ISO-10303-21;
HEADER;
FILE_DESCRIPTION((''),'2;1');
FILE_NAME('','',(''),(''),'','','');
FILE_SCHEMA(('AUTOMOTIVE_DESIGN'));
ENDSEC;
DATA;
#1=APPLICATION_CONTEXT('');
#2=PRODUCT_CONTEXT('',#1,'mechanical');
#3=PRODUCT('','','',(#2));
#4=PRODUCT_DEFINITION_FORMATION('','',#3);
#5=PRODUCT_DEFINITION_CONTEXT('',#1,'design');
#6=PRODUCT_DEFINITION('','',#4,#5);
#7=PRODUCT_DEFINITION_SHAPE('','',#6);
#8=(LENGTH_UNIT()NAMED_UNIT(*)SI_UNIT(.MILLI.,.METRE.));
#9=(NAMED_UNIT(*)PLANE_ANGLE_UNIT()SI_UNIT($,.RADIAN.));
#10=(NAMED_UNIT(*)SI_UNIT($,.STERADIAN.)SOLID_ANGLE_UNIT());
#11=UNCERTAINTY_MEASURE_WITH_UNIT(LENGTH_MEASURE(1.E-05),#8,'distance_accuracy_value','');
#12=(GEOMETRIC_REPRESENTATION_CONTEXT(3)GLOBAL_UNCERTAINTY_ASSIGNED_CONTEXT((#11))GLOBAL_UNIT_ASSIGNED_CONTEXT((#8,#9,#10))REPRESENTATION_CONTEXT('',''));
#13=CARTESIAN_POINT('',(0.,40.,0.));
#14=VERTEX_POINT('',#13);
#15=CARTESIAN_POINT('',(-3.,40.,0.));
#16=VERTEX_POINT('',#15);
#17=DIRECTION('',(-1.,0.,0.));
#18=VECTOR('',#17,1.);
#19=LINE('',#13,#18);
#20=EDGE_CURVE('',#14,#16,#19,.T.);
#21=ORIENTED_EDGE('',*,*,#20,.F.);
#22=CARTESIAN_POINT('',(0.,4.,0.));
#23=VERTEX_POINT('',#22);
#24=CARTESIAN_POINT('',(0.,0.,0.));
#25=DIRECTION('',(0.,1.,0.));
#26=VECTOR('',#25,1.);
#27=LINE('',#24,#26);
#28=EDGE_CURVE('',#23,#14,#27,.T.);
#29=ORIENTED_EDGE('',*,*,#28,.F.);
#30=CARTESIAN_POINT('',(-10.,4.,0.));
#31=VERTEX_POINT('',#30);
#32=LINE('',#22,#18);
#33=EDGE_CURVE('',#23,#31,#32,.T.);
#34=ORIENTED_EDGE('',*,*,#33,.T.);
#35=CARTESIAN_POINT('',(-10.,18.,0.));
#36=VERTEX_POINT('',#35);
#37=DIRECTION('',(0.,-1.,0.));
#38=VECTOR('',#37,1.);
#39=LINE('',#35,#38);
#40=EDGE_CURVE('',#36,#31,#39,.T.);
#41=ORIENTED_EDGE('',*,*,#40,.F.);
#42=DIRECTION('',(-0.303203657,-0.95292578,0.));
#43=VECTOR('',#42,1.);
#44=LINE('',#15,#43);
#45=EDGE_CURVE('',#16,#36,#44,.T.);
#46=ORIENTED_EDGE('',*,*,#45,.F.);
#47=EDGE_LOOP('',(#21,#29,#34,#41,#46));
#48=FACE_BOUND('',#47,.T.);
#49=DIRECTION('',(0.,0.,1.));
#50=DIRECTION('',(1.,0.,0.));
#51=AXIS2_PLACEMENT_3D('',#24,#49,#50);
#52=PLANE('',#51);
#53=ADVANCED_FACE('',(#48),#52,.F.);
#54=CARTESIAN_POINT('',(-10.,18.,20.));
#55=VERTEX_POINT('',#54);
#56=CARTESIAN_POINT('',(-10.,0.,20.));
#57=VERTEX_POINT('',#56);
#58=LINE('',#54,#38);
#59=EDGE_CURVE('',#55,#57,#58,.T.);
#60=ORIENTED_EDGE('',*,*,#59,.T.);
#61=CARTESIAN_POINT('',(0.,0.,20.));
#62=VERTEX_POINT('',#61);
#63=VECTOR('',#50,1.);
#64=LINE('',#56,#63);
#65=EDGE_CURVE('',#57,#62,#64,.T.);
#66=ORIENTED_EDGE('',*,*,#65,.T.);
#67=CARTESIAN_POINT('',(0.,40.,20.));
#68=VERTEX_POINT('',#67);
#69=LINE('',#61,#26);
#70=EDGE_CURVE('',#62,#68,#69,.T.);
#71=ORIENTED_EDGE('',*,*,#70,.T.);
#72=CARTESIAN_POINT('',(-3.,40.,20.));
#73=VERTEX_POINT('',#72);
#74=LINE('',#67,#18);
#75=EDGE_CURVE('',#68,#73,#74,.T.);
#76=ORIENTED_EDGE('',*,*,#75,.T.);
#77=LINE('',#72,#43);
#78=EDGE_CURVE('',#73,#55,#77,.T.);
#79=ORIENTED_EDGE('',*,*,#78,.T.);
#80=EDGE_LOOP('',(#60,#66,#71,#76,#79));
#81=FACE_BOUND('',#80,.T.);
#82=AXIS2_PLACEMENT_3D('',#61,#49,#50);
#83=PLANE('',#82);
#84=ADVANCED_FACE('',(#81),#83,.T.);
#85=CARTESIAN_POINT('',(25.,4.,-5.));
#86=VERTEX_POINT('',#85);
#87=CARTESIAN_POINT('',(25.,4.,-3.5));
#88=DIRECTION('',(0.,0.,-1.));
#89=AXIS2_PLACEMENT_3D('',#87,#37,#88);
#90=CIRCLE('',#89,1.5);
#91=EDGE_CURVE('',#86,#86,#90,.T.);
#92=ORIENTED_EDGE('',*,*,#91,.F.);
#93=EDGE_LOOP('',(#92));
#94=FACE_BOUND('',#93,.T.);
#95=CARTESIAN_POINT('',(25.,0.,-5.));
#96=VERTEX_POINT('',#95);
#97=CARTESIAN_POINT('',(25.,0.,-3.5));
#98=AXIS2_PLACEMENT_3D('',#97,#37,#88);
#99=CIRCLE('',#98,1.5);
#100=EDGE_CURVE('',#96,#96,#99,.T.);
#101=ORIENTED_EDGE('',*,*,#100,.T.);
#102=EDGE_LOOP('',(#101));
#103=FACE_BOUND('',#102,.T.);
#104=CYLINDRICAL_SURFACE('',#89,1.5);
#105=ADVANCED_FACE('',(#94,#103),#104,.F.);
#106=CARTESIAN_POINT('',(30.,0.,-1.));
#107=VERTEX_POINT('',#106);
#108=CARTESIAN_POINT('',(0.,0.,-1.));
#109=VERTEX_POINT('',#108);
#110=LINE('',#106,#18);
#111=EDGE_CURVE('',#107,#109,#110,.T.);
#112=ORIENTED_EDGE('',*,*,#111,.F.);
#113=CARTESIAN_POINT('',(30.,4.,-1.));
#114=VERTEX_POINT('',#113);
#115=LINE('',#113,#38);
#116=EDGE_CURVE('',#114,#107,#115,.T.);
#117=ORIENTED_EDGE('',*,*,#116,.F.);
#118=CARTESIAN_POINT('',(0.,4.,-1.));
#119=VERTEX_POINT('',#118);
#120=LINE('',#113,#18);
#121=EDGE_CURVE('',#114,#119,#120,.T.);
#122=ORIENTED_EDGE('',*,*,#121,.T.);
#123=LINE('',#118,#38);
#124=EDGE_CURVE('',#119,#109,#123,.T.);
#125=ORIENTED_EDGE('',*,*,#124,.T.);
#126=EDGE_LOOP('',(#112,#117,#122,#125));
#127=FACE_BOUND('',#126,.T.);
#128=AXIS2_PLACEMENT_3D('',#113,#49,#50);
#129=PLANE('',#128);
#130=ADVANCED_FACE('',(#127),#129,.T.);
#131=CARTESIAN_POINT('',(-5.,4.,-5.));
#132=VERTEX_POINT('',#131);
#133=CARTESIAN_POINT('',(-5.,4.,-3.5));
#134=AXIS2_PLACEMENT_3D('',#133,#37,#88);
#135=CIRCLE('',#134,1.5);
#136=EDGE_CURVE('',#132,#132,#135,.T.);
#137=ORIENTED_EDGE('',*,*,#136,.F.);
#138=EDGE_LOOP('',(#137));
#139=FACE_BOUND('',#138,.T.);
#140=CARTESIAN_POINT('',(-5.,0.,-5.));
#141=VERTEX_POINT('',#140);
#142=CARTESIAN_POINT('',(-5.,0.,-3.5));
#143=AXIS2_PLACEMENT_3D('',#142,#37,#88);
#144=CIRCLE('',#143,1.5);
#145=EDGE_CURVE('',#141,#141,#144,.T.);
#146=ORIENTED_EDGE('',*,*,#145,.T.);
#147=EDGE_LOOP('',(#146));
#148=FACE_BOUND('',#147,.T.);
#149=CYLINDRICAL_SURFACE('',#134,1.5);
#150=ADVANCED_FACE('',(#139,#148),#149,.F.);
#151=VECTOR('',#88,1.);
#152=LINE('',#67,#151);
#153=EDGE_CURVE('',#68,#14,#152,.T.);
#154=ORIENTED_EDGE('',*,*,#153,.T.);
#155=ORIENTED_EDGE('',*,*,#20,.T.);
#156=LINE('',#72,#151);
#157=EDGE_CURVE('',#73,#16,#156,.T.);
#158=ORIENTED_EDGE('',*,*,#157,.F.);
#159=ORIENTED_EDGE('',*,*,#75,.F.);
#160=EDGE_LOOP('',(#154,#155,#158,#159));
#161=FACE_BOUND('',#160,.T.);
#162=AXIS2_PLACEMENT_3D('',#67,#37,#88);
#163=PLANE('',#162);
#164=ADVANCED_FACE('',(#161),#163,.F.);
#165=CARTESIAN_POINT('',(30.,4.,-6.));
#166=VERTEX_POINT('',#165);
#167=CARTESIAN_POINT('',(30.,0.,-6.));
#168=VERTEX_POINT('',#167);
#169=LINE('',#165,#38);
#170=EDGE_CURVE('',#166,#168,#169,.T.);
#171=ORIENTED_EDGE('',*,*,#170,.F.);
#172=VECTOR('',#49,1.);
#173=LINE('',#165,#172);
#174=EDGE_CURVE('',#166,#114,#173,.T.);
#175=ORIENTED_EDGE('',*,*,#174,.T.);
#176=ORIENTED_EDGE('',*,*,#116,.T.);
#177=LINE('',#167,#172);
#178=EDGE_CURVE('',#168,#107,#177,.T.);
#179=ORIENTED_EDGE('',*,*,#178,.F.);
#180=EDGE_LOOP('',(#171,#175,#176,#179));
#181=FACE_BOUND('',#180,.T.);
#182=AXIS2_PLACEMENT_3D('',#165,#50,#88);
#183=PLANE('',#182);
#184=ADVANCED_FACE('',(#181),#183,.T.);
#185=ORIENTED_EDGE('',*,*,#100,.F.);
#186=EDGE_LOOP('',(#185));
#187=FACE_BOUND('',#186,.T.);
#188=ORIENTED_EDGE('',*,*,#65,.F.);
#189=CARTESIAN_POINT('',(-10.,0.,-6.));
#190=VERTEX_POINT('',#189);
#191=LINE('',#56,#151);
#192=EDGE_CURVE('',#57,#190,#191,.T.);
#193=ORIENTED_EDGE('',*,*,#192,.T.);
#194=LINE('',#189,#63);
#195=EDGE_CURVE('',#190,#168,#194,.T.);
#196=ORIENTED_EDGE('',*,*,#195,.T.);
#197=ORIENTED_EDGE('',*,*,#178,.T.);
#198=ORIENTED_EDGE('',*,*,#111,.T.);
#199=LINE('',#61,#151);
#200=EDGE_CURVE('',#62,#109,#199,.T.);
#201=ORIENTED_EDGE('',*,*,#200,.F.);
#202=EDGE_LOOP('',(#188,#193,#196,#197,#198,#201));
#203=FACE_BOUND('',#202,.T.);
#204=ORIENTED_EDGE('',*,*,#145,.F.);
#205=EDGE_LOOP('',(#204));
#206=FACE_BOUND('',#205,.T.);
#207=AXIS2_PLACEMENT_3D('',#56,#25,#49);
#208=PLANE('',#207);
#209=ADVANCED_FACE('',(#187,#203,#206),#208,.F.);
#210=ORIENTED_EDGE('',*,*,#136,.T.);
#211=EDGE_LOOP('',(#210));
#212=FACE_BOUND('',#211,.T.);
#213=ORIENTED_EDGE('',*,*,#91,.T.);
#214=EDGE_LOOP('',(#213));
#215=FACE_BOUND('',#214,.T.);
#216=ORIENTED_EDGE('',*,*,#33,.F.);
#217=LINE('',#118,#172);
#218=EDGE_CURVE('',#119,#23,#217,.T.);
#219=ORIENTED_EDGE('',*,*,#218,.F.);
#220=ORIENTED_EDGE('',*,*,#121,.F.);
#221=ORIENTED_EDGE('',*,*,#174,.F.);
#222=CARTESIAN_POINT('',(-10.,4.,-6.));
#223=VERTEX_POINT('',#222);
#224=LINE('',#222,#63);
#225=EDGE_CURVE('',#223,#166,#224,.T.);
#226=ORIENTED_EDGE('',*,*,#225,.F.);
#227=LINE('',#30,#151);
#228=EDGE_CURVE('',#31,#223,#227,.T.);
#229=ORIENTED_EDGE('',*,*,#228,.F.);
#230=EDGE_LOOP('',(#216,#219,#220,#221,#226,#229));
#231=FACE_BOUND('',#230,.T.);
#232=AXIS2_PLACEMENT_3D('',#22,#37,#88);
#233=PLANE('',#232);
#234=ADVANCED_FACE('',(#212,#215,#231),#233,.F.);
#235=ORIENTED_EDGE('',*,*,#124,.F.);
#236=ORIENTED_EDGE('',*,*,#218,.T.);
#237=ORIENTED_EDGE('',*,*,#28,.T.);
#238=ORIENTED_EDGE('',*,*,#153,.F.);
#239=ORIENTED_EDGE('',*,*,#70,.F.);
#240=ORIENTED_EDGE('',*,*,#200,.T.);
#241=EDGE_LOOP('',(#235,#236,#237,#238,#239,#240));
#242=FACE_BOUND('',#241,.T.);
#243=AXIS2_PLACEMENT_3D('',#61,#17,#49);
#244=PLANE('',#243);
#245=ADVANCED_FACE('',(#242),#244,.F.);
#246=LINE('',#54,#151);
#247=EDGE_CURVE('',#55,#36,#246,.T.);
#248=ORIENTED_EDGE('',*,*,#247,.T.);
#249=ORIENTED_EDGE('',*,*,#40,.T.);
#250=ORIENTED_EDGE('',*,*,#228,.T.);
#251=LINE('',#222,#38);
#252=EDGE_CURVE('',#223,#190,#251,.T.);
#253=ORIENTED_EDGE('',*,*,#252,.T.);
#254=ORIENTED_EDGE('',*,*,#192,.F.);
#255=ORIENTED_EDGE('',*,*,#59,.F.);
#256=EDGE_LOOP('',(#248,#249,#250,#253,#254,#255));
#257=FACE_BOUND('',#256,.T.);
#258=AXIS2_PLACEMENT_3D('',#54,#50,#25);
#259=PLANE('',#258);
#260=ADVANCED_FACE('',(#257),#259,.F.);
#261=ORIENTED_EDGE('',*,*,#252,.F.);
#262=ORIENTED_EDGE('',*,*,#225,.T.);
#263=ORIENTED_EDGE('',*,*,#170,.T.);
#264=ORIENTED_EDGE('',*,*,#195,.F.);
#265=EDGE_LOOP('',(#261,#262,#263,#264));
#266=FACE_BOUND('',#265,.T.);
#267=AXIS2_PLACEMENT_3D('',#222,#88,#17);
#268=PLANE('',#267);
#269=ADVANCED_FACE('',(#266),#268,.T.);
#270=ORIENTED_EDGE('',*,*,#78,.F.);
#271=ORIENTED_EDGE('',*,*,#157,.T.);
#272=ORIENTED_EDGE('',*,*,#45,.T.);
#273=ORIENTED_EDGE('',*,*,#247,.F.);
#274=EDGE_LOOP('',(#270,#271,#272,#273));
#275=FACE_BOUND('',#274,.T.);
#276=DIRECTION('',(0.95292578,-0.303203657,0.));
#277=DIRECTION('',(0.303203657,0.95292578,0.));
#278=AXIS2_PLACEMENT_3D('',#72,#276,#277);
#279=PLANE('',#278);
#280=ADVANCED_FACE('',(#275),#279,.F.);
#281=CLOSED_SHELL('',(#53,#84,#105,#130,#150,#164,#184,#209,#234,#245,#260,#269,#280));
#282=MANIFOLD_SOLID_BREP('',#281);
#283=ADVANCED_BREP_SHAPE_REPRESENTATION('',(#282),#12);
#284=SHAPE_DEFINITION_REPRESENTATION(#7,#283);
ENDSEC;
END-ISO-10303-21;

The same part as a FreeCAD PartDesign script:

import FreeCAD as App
import Part
import Sketcher
Q = App.Units.Quantity

doc = App.newDocument("Part")
params = doc.addObject("Spreadsheet::Sheet", "Params")
for row, (alias, value) in enumerate([
    ("sketch1_width", "3 mm"),
    ("sketch1_width2", "10 mm"),
    ("sketch1_height", "40 mm"),
    ("sketch1_height2", "18 mm"),
    ("pad1_length", "20 mm"),
    ("sketch2_diameter", "3 mm"),
    ("sketch2_width", "40 mm"),
    ("sketch2_width2", "30 mm"),
    ("sketch2_height", "6 mm"),
    ("sketch2_height2", "5 mm"),
    ("pad2_length", "4 mm"),
], start=1):
    params.set(f"A{row}", alias)
    params.set(f"B{row}", "=" + value)
    params.setAlias(f"B{row}", alias)

body = doc.addObject("PartDesign::Body", "Body")

# Sketch on XY plane
sketch1 = body.newObject("Sketcher::SketchObject", "Sketch")
sketch1.AttachmentSupport = (doc.getObject("XY_Plane"), [""])
sketch1.MapMode = "FlatFace"
sketch1.addGeometry(Part.LineSegment(App.Vector(0, 0, 0), App.Vector(0, 40, 0)), False)
sketch1.addGeometry(Part.LineSegment(App.Vector(0, 40, 0), App.Vector(-3, 40, 0)), False)
sketch1.addGeometry(Part.LineSegment(App.Vector(-3, 40, 0), App.Vector(-10, 18, 0)), False)
sketch1.addGeometry(Part.LineSegment(App.Vector(-10, 18, 0), App.Vector(-10, 0, 0)), False)
sketch1.addGeometry(Part.LineSegment(App.Vector(-10, 0, 0), App.Vector(0, 0, 0)), False)
sketch1.addConstraint(Sketcher.Constraint("Coincident", 0, 2, 1, 1))
sketch1.addConstraint(Sketcher.Constraint("Coincident", 1, 2, 2, 1))
sketch1.addConstraint(Sketcher.Constraint("Coincident", 2, 2, 3, 1))
sketch1.addConstraint(Sketcher.Constraint("Coincident", 3, 2, 4, 1))
sketch1.addConstraint(Sketcher.Constraint("Coincident", 4, 2, 0, 1))
sketch1.addConstraint(Sketcher.Constraint("Vertical", 0))
sketch1.addConstraint(Sketcher.Constraint("Horizontal", 1))
sketch1.addConstraint(Sketcher.Constraint("Vertical", 3))
sketch1.addConstraint(Sketcher.Constraint("Horizontal", 4))
sketch1.addConstraint(Sketcher.Constraint("Coincident", 4, 2, -1, 1))
sketch1.addConstraint(Sketcher.Constraint("DistanceX", 1, 2, 1, 1, Q("3 mm")))
sketch1.addConstraint(Sketcher.Constraint("DistanceX", 4, 1, 4, 2, Q("10 mm")))
sketch1.addConstraint(Sketcher.Constraint("DistanceY", 0, 1, 0, 2, Q("40 mm")))
sketch1.addConstraint(Sketcher.Constraint("DistanceY", 3, 2, 3, 1, Q("18 mm")))
sketch1.setExpression("Constraints[10]", "Params.sketch1_width")
sketch1.setExpression("Constraints[11]", "Params.sketch1_width2")
sketch1.setExpression("Constraints[12]", "Params.sketch1_height")
sketch1.setExpression("Constraints[13]", "Params.sketch1_height2")
pad1 = body.newObject("PartDesign::Pad", "Pad")
pad1.Profile = sketch1
pad1.setExpression("Length", "Params.pad1_length")

# Sketch on XZ plane
sketch2 = body.newObject("Sketcher::SketchObject", "Sketch001")
sketch2.AttachmentSupport = (doc.getObject("XZ_Plane"), [""])
sketch2.MapMode = "FlatFace"
sketch2.addGeometry(Part.LineSegment(App.Vector(-10, 0, 0), App.Vector(-10, -6, 0)), False)
sketch2.addGeometry(Part.LineSegment(App.Vector(-10, -6, 0), App.Vector(30, -6, 0)), False)
sketch2.addGeometry(Part.LineSegment(App.Vector(30, -6, 0), App.Vector(30, -1, 0)), False)
sketch2.addGeometry(Part.LineSegment(App.Vector(30, -1, 0), App.Vector(0, -1, 0)), False)
sketch2.addGeometry(Part.LineSegment(App.Vector(0, -1, 0), App.Vector(0, 0, 0)), False)
sketch2.addGeometry(Part.LineSegment(App.Vector(0, 0, 0), App.Vector(-10, 0, 0)), False)
sketch2.addGeometry(Part.Circle(App.Vector(-5, -3.5, 0), App.Vector(0, 0, 1), 1.5), False)
sketch2.addGeometry(Part.Circle(App.Vector(25, -3.5, 0), App.Vector(0, 0, 1), 1.5), False)
sketch2.addConstraint(Sketcher.Constraint("Coincident", 0, 2, 1, 1))
sketch2.addConstraint(Sketcher.Constraint("Coincident", 1, 2, 2, 1))
sketch2.addConstraint(Sketcher.Constraint("Coincident", 2, 2, 3, 1))
sketch2.addConstraint(Sketcher.Constraint("Coincident", 3, 2, 4, 1))
sketch2.addConstraint(Sketcher.Constraint("Coincident", 4, 2, 5, 1))
sketch2.addConstraint(Sketcher.Constraint("Coincident", 5, 2, 0, 1))
sketch2.addConstraint(Sketcher.Constraint("Vertical", 0))
sketch2.addConstraint(Sketcher.Constraint("Horizontal", 1))
sketch2.addConstraint(Sketcher.Constraint("Vertical", 2))
sketch2.addConstraint(Sketcher.Constraint("Horizontal", 3))
sketch2.addConstraint(Sketcher.Constraint("Vertical", 4))
sketch2.addConstraint(Sketcher.Constraint("Horizontal", 5))
sketch2.addConstraint(Sketcher.Constraint("Coincident", 4, 2, -1, 1))
sketch2.addConstraint(Sketcher.Constraint("Equal", 6, 7))
sketch2.addConstraint(Sketcher.Constraint("Horizontal", 6, 3, 7, 3))
sketch2.addConstraint(Sketcher.Constraint("Diameter", 6, Q("3 mm")))
sketch2.addConstraint(Sketcher.Constraint("DistanceX", 1, 1, 1, 2, Q("40 mm")))
sketch2.addConstraint(Sketcher.Constraint("DistanceX", 3, 2, 3, 1, Q("30 mm")))
sketch2.addConstraint(Sketcher.Constraint("DistanceY", 0, 2, 0, 1, Q("6 mm")))
sketch2.addConstraint(Sketcher.Constraint("DistanceY", 2, 1, 2, 2, Q("5 mm")))
sketch2.addConstraint(Sketcher.Constraint("DistanceX", 6, 3, -1, 1, Q("5 mm")))
sketch2.addConstraint(Sketcher.Constraint("DistanceX", -1, 1, 7, 3, Q("25 mm")))
sketch2.addConstraint(Sketcher.Constraint("DistanceY", 6, 3, -1, 1, Q("3.5 mm")))
sketch2.setExpression("Constraints[15]", "Params.sketch2_diameter")
sketch2.setExpression("Constraints[16]", "Params.sketch2_width")
sketch2.setExpression("Constraints[17]", "Params.sketch2_width2")
sketch2.setExpression("Constraints[18]", "Params.sketch2_height")
sketch2.setExpression("Constraints[19]", "Params.sketch2_height2")
pad2 = body.newObject("PartDesign::Pad", "Pad001")
pad2.Profile = sketch2
pad2.setExpression("Length", "Params.pad2_length")
pad2.Reversed = True

doc.recompute()
